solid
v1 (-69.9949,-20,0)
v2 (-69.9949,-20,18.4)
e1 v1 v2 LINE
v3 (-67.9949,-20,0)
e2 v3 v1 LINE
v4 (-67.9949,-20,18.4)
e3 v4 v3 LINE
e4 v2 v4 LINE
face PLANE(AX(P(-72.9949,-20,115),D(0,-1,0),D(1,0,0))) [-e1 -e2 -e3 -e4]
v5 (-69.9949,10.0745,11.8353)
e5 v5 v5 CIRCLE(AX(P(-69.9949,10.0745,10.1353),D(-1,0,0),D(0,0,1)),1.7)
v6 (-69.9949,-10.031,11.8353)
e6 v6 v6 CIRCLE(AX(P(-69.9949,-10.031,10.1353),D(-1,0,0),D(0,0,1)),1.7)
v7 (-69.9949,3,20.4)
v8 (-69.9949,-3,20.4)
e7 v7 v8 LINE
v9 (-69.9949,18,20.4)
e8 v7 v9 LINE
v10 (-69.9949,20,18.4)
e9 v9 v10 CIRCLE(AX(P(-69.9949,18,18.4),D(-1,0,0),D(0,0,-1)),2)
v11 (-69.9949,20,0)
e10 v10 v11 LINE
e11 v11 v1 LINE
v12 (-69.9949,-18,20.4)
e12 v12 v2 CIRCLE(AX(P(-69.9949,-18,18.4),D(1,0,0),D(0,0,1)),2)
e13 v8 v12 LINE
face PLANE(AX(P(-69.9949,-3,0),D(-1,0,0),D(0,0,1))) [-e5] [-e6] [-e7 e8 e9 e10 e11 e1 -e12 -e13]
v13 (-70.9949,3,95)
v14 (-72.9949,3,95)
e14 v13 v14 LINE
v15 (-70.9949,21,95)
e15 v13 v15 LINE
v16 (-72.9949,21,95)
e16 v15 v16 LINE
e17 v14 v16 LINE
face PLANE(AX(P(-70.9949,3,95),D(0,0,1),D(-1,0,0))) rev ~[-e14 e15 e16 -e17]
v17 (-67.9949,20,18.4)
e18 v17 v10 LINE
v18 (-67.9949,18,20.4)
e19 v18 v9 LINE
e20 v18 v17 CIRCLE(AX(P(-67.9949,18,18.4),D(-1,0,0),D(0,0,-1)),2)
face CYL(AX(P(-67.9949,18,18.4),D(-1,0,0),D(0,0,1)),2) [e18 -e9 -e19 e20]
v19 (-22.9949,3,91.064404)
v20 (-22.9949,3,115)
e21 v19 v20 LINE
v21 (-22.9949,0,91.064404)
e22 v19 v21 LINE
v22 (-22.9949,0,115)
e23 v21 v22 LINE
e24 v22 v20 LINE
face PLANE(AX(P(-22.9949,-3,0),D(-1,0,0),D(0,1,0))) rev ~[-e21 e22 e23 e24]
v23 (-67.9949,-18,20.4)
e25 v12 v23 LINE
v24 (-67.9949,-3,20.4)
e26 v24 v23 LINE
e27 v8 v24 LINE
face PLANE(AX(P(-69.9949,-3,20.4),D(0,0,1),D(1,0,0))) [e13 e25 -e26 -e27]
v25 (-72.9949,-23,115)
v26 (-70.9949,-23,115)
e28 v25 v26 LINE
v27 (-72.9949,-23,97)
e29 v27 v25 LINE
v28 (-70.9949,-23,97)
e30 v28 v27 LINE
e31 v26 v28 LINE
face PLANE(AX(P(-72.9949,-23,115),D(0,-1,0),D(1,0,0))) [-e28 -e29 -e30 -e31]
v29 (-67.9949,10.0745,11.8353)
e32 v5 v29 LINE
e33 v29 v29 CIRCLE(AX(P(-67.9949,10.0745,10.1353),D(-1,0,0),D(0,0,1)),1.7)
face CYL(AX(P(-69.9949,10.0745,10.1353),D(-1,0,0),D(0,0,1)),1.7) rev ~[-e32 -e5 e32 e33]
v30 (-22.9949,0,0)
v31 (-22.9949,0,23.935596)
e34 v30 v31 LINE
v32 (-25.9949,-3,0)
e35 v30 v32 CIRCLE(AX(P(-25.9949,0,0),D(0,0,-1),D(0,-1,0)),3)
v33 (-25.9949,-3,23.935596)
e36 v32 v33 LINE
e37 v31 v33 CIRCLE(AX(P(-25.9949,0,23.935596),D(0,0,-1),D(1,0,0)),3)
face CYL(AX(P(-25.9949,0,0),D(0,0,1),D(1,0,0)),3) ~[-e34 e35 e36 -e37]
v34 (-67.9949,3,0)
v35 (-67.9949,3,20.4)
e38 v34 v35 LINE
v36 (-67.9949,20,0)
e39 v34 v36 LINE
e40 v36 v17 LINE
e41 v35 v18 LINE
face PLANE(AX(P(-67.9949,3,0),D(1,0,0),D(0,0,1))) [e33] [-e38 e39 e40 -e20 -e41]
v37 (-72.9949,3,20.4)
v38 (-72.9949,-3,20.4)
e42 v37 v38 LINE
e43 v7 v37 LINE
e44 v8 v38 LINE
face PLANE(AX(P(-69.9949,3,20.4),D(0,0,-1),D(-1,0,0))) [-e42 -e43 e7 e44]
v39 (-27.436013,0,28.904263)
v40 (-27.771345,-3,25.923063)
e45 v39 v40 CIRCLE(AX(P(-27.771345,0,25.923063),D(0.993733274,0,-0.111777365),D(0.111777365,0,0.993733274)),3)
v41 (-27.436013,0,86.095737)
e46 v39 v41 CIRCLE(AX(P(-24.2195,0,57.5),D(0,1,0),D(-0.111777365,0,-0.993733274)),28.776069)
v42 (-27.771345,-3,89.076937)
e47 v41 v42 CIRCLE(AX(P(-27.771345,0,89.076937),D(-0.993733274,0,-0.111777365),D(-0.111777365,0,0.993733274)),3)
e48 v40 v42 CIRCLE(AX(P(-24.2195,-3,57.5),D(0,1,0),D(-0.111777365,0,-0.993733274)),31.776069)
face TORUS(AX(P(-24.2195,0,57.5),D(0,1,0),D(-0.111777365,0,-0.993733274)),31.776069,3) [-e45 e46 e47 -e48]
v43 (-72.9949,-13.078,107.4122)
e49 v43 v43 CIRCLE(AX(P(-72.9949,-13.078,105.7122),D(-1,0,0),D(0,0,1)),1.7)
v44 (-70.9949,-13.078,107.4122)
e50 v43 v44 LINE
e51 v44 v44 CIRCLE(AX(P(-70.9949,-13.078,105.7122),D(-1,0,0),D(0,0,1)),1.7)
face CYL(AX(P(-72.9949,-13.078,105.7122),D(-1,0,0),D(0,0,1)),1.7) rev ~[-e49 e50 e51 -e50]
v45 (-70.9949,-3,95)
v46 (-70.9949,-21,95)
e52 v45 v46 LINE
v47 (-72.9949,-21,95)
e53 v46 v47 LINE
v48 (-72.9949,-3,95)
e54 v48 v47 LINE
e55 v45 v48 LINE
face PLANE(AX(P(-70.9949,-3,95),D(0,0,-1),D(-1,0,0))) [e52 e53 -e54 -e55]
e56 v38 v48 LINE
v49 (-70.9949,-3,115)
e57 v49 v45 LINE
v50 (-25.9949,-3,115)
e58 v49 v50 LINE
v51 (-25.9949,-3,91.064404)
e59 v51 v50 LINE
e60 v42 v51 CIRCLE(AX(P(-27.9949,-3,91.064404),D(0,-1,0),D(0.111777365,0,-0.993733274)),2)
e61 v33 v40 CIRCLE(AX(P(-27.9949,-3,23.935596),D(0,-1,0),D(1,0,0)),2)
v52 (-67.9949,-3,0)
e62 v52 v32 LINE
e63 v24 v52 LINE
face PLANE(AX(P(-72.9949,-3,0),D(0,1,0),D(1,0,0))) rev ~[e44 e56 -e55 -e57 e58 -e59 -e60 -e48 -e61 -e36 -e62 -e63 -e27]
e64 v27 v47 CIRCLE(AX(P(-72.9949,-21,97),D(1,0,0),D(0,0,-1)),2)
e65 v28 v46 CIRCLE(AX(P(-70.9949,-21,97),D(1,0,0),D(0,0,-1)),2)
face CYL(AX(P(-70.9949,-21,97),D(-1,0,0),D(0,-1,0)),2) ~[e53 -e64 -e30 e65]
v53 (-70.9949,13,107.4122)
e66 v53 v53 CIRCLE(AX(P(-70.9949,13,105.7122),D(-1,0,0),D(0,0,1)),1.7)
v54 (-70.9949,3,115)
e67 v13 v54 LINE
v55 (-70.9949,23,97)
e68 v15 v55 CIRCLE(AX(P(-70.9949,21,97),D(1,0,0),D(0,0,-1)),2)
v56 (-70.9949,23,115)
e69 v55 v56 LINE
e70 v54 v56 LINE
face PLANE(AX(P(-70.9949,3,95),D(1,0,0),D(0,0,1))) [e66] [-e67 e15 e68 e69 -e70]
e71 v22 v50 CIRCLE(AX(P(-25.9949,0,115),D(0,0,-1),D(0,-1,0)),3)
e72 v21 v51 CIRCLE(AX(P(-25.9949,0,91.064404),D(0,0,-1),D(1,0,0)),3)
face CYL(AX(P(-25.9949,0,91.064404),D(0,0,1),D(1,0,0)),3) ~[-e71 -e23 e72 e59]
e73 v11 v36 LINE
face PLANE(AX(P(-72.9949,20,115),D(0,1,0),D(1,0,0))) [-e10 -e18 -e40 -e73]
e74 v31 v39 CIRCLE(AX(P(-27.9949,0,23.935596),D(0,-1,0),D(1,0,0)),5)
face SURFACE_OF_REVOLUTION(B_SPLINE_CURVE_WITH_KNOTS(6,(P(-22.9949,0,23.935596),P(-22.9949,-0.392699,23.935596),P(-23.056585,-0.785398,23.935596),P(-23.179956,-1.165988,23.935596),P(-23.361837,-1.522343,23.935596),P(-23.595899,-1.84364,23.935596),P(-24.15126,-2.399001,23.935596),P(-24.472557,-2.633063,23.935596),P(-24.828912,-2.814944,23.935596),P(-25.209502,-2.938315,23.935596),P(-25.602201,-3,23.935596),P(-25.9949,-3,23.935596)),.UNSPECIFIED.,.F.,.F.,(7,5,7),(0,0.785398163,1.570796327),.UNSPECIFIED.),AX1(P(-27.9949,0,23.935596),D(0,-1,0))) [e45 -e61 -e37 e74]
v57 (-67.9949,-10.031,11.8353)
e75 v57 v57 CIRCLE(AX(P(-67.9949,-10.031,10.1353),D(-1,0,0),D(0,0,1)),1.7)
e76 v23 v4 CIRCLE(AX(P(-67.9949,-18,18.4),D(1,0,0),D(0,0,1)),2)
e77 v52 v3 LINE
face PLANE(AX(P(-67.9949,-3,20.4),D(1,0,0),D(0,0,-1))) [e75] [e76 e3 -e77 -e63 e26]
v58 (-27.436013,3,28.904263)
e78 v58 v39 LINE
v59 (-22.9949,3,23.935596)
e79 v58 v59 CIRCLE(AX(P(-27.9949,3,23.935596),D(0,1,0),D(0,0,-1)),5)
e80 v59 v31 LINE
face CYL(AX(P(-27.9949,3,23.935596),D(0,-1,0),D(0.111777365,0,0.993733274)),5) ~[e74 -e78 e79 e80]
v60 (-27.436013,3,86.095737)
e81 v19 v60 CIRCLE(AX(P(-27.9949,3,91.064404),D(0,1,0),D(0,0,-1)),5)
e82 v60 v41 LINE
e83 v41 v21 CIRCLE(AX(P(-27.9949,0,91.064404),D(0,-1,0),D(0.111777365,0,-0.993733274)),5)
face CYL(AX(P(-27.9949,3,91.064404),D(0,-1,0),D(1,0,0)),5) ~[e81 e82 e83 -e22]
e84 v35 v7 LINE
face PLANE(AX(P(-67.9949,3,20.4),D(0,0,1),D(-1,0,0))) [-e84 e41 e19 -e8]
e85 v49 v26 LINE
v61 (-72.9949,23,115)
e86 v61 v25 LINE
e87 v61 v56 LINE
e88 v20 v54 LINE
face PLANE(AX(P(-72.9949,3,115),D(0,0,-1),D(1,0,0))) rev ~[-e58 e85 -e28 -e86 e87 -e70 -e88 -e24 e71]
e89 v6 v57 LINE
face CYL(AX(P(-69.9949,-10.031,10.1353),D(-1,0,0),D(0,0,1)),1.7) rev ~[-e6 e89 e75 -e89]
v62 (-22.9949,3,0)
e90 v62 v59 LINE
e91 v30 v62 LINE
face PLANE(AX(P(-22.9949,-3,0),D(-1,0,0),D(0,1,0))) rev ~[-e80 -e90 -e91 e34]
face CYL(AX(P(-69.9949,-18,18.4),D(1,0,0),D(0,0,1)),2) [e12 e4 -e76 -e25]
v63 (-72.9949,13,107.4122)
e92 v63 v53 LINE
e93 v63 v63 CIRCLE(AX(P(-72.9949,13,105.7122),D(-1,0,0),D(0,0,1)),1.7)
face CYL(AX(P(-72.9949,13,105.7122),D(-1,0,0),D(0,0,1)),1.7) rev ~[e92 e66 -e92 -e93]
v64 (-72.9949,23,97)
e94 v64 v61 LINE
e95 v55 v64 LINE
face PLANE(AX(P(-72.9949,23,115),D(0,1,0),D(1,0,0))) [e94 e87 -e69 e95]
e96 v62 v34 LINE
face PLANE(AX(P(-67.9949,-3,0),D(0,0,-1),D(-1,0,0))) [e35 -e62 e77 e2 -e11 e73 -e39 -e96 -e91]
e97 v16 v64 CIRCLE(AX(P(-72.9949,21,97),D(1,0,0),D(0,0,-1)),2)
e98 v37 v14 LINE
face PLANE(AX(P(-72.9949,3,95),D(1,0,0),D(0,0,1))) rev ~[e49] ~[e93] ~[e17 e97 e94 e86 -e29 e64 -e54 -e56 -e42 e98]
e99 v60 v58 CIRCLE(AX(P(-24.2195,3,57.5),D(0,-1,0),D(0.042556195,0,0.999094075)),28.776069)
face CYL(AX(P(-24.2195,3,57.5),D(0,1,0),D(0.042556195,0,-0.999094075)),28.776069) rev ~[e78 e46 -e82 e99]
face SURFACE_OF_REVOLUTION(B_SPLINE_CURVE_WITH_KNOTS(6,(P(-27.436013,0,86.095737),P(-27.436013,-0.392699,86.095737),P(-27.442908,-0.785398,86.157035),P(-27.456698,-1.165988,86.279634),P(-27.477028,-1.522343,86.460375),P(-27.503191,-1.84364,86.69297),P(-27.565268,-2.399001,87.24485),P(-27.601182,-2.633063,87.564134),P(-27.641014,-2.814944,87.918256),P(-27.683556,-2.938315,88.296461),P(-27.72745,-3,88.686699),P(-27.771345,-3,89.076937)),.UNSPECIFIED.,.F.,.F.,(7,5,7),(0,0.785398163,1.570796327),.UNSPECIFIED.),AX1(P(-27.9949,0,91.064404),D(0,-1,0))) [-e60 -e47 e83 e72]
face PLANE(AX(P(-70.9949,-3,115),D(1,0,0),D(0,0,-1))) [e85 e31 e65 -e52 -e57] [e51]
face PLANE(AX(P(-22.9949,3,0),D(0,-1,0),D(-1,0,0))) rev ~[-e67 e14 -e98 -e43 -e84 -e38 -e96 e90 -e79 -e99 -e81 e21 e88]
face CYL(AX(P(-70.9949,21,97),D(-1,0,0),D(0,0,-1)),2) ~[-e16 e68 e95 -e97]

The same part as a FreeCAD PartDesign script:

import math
import FreeCAD as App
import Part
import Sketcher
from FreeCAD import Vector
Q = App.Units.Quantity


def edges_at(feature, points):
    """Names of the edges that pass closest to the given points."""
    edges = feature.Shape.Edges
    near = lambda p: min(range(len(edges)), key=lambda i: edges[i].distToShape(Part.Vertex(*p))[0])
    return sorted({f"Edge{near(p) + 1}" for p in points})


def add_polygon(sketch, points):
    """Adds a closed chain of lines whose ends are joined by coincident constraints."""
    first, n = sketch.GeometryCount, len(points)
    for a, b in zip(points, points[1:] + points[:1]):
        sketch.addGeometry(Part.LineSegment(App.Vector(*a, 0), App.Vector(*b, 0)), False)
    for i in range(n):
        sketch.addConstraint(Sketcher.Constraint("Coincident", first + i, 2, first + (i + 1) % n, 1))

doc = App.newDocument("Part")
params = doc.addObject("Spreadsheet::Sheet", "Params")
for row, (alias, value) in enumerate([
    ("sketch1_width", "50 mm"),
    ("sketch1_height", "6 mm"),
    ("pad1_length", "115 mm"),
    ("sketch2_width", "3 mm"),
    ("sketch2_height", "20.4 mm"),
    ("pocket1_length", "6 mm"),
    ("sketch3_width", "2 mm"),
    ("sketch3_height", "20.4 mm"),
    ("pad2_length", "17 mm"),
    ("sketch4_width", "2 mm"),
    ("sketch4_height", "20.4 mm"),
    ("pad3_length", "17 mm"),
    ("fillet_radius", "2 mm"),
    ("sketch5_diameter", "3.4 mm"),
    ("pocket2_length", "2 mm"),
    ("sketch6_width", "2 mm"),
    ("sketch6_height", "20 mm"),
    ("pad4_length", "20 mm"),
    ("sketch7_width", "2 mm"),
    ("sketch7_height", "20 mm"),
    ("pad5_length", "20 mm"),
    ("sketch8_diameter", "3.4 mm"),
    ("pocket3_length", "20 mm"),
    ("fillet2_radius", "2 mm"),
    ("sketch9_height", "57.5 mm"),
    ("pocket4_length", "20 mm"),
    ("fillet3_radius", "5 mm"),
    ("fillet4_radius", "3 mm"),
], start=1):
    params.set(f"A{row}", alias)
    params.set(f"B{row}", "=" + value)
    params.setAlias(f"B{row}", alias)

body = doc.addObject("PartDesign::Body", "Body")

sketch1 = doc.addObject("Sketcher::SketchObject", "Sketch")
body.addObject(sketch1)
sketch1.AttachmentSupport = (doc.XY_Plane, [""])
sketch1.MapMode = "FlatFace"
add_polygon(sketch1, [(-73, 3), (-73, -3), (-23, -3), (-23, 3)])
sketch1.addConstraint([
    Sketcher.Constraint("Vertical", 0),
    Sketcher.Constraint("Horizontal", 1),
    Sketcher.Constraint("Vertical", 2),
    Sketcher.Constraint("Horizontal", 3),
    Sketcher.Constraint("DistanceX", 1, 1, 1, 2, Q("50 mm")),
    Sketcher.Constraint("DistanceY", 0, 2, 0, 1, Q("6 mm")),
    Sketcher.Constraint("DistanceY", 0, 2, -1, 1, Q("3 mm")),
    Sketcher.Constraint("DistanceX", 0, 2, -1, 1, Q("72.995 mm")),
])
sketch1.setExpression("Constraints[8]", "Params.sketch1_width")
sketch1.setExpression("Constraints[9]", "Params.sketch1_height")
pad1 = doc.addObject("PartDesign::Pad", "Pad")
body.addObject(pad1)
pad1.Profile = sketch1
pad1.setExpression("Length", "Params.pad1_length")

sketch2 = doc.addObject("Sketcher::SketchObject", "Sketch001")
body.addObject(sketch2)
sketch2.AttachmentSupport = (doc.XZ_Plane, [""])
sketch2.MapMode = "FlatFace"
sketch2.AttachmentOffset = App.Placement(Vector(0, 0, -3), App.Rotation())
add_polygon(sketch2, [(-70, 0), (-73, 0), (-73, 20.4), (-70, 20.4)])
sketch2.addConstraint([
    Sketcher.Constraint("Horizontal", 0),
    Sketcher.Constraint("Vertical", 1),
    Sketcher.Constraint("Horizontal", 2),
    Sketcher.Constraint("Vertical", 3),
    Sketcher.Constraint("PointOnObject", 0, 2, -1),
    Sketcher.Constraint("DistanceX", 0, 2, 0, 1, Q("3 mm")),
    Sketcher.Constraint("DistanceY", 1, 1, 1, 2, Q("20.4 mm")),
    Sketcher.Constraint("DistanceX", 0, 2, -1, 1, Q("72.995 mm")),
])
sketch2.setExpression("Constraints[9]", "Params.sketch2_width")
sketch2.setExpression("Constraints[10]", "Params.sketch2_height")
pocket1 = doc.addObject("PartDesign::Pocket", "Pocket")
body.addObject(pocket1)
pocket1.Profile = sketch2
pocket1.setExpression("Length", "Params.pocket1_length")
pocket1.Reversed = True

sketch3 = doc.addObject("Sketcher::SketchObject", "Sketch002")
body.addObject(sketch3)
sketch3.AttachmentSupport = (doc.XZ_Plane, [""])
sketch3.MapMode = "FlatFace"
sketch3.AttachmentOffset = App.Placement(Vector(0, 0, -3), App.Rotation())
add_polygon(sketch3, [(-68, 0), (-70, 0), (-70, 20.4), (-68, 20.4)])
sketch3.addConstraint([
    Sketcher.Constraint("Horizontal", 0),
    Sketcher.Constraint("Vertical", 1),
    Sketcher.Constraint("Horizontal", 2),
    Sketcher.Constraint("Vertical", 3),
    Sketcher.Constraint("PointOnObject", 0, 2, -1),
    Sketcher.Constraint("DistanceX", 0, 2, 0, 1, Q("2 mm")),
    Sketcher.Constraint("DistanceY", 1, 1, 1, 2, Q("20.4 mm")),
    Sketcher.Constraint("DistanceX", 0, 2, -1, 1, Q("69.995 mm")),
])
sketch3.setExpression("Constraints[9]", "Params.sketch3_width")
sketch3.setExpression("Constraints[10]", "Params.sketch3_height")
pad2 = doc.addObject("PartDesign::Pad", "Pad001")
body.addObject(pad2)
pad2.Profile = sketch3
pad2.setExpression("Length", "Params.pad2_length")
pad2.Reversed = True

sketch4 = doc.addObject("Sketcher::SketchObject", "Sketch003")
body.addObject(sketch4)
sketch4.AttachmentSupport = (doc.XZ_Plane, [""])
sketch4.MapMode = "FlatFace"
sketch4.AttachmentOffset = App.Placement(Vector(0, 0, 3), App.Rotation())
add_polygon(sketch4, [(-68, 20.4), (-70, 20.4), (-70, 0), (-68, 0)])
sketch4.addConstraint([
    Sketcher.Constraint("Horizontal", 0),
    Sketcher.Constraint("Vertical", 1),
    Sketcher.Constraint("Horizontal", 2),
    Sketcher.Constraint("Vertical", 3),
    Sketcher.Constraint("PointOnObject", 1, 2, -1),
    Sketcher.Constraint("DistanceX", 0, 2, 0, 1, Q("2 mm")),
    Sketcher.Constraint("DistanceY", 1, 2, 1, 1, Q("20.4 mm")),
    Sketcher.Constraint("DistanceX", 0, 2, -1, 1, Q("69.995 mm")),
])
sketch4.setExpression("Constraints[9]", "Params.sketch4_width")
sketch4.setExpression("Constraints[10]", "Params.sketch4_height")
pad3 = doc.addObject("PartDesign::Pad", "Pad002")
body.addObject(pad3)
pad3.Profile = sketch4
pad3.setExpression("Length", "Params.pad3_length")
doc.recompute()

fillet = doc.addObject("PartDesign::Fillet", "Fillet")
body.addObject(fillet)
fillet.Base = (pad3, edges_at(pad3, [(-68.995, -20, 20.4), (-68.995, 20, 20.4)]))
fillet.setExpression("Radius", "Params.fillet_radius")

sketch5 = doc.addObject("Sketcher::SketchObject", "Sketch004")
body.addObject(sketch5)
sketch5.AttachmentSupport = (doc.YZ_Plane, [""])
sketch5.MapMode = "FlatFace"
sketch5.AttachmentOffset = App.Placement(Vector(0, 0, -69.9949), App.Rotation())
sketch5.addGeometry([
    Part.Circle(Vector(-10, 10.1, 0), Vector(0, 0, 1), 1.7),
    Part.Circle(Vector(10.1, 10.1, 0), Vector(0, 0, 1), 1.7),
], False)
sketch5.addConstraint([
    Sketcher.Constraint("Equal", 0, 1),
    Sketcher.Constraint("Horizontal", 0, 3, 1, 3),
    Sketcher.Constraint("Diameter", 0, Q("3.4 mm")),
    Sketcher.Constraint("DistanceX", 0, 3, -1, 1, Q("10.031 mm")),
    Sketcher.Constraint("DistanceY", -1, 1, 0, 3, Q("10.1353 mm")),
    Sketcher.Constraint("DistanceX", -1, 1, 1, 3, Q("10.0745 mm")),
])
sketch5.setExpression("Constraints[2]", "Params.sketch5_diameter")
pocket2 = doc.addObject("PartDesign::Pocket", "Pocket001")
body.addObject(pocket2)
pocket2.Profile = sketch5
pocket2.setExpression("Length", "Params.pocket2_length")
pocket2.Reversed = True

sketch6 = doc.addObject("Sketcher::SketchObject", "Sketch005")
body.addObject(sketch6)
sketch6.AttachmentSupport = (doc.XZ_Plane, [""])
sketch6.MapMode = "FlatFace"
sketch6.AttachmentOffset = App.Placement(Vector(0, 0, 3), App.Rotation())
add_polygon(sketch6, [(-71, 115), (-73, 115), (-73, 95), (-71, 95)])
sketch6.addConstraint([
    Sketcher.Constraint("Horizontal", 0),
    Sketcher.Constraint("Vertical", 1),
    Sketcher.Constraint("Horizontal", 2),
    Sketcher.Constraint("Vertical", 3),
    Sketcher.Constraint("DistanceX", 0, 2, 0, 1, Q("2 mm")),
    Sketcher.Constraint("DistanceY", 1, 2, 1, 1, Q("20 mm")),
    Sketcher.Constraint("DistanceY", -1, 1, 0, 2, Q("115 mm")),
    Sketcher.Constraint("DistanceX", 0, 2, -1, 1, Q("72.995 mm")),
])
sketch6.setExpression("Constraints[8]", "Params.sketch6_width")
sketch6.setExpression("Constraints[9]", "Params.sketch6_height")
pad4 = doc.addObject("PartDesign::Pad", "Pad003")
body.addObject(pad4)
pad4.Profile = sketch6
pad4.setExpression("Length", "Params.pad4_length")

sketch7 = doc.addObject("Sketcher::SketchObject", "Sketch006")
body.addObject(sketch7)
sketch7.AttachmentSupport = (doc.XZ_Plane, [""])
sketch7.MapMode = "FlatFace"
sketch7.AttachmentOffset = App.Placement(Vector(0, 0, -3), App.Rotation())
add_polygon(sketch7, [(-71, 115), (-71, 95), (-73, 95), (-73, 115)])
sketch7.addConstraint([
    Sketcher.Constraint("Vertical", 0),
    Sketcher.Constraint("Horizontal", 1),
    Sketcher.Constraint("Vertical", 2),
    Sketcher.Constraint("Horizontal", 3),
    Sketcher.Constraint("DistanceX", 1, 2, 1, 1, Q("2 mm")),
    Sketcher.Constraint("DistanceY", 0, 2, 0, 1, Q("20 mm")),
    Sketcher.Constraint("DistanceY", -1, 1, 0, 2, Q("95 mm")),
    Sketcher.Constraint("DistanceX", 0, 2, -1, 1, Q("70.995 mm")),
])
sketch7.setExpression("Constraints[8]", "Params.sketch7_width")
sketch7.setExpression("Constraints[9]", "Params.sketch7_height")
pad5 = doc.addObject("PartDesign::Pad", "Pad004")
body.addObject(pad5)
pad5.Profile = sketch7
pad5.setExpression("Length", "Params.pad5_length")
pad5.Reversed = True

sketch8 = doc.addObject("Sketcher::SketchObject", "Sketch007")
body.addObject(sketch8)
sketch8.AttachmentSupport = (doc.YZ_Plane, [""])
sketch8.MapMode = "FlatFace"
sketch8.AttachmentOffset = App.Placement(Vector(0, 0, -72.9949), App.Rotation())
sketch8.addGeometry([
    Part.Circle(Vector(13, 105.7, 0), Vector(0, 0, 1), 1.7),
    Part.Circle(Vector(-13.1, 105.7, 0), Vector(0, 0, 1), 1.7),
], False)
sketch8.addConstraint([
    Sketcher.Constraint("Equal", 0, 1),
    Sketcher.Constraint("Horizontal", 0, 3, 1, 3),
    Sketcher.Constraint("Diameter", 0, Q("3.4 mm")),
    Sketcher.Constraint("DistanceX", -1, 1, 0, 3, Q("13 mm")),
    Sketcher.Constraint("DistanceX", 1, 3, -1, 1, Q("13.078 mm")),
    Sketcher.Constraint("DistanceY", -1, 1, 0, 3, Q("105.7122 mm")),
])
sketch8.setExpression("Constraints[2]", "Params.sketch8_diameter")
pocket3 = doc.addObject("PartDesign::Pocket", "Pocket002")
body.addObject(pocket3)
pocket3.Profile = sketch8
pocket3.setExpression("Length", "Params.pocket3_length")
pocket3.Reversed = True
doc.recompute()

fillet2 = doc.addObject("PartDesign::Fillet", "Fillet001")
body.addObject(fillet2)
fillet2.Base = (pocket3, edges_at(pocket3, [(-71.995, 23, 95), (-71.995, -23, 95)]))
fillet2.setExpression("Radius", "Params.fillet2_radius")

sketch9 = doc.addObject("Sketcher::SketchObject", "Sketch008")
body.addObject(sketch9)
sketch9.AttachmentSupport = (doc.XZ_Plane, [""])
sketch9.MapMode = "FlatFace"
sketch9.AttachmentOffset = App.Placement(Vector(0, 0, -3), App.Rotation())
sketch9.addGeometry([
    Part.LineSegment(Vector(-23, 86, 0), Vector(-23, 29, 0)),
    Part.ArcOfCircle(Part.Circle(Vector(-24, 58, 0), Vector(0, 0, 1), 29), math.radians(88), math.radians(272)),
], False)
sketch9.addConstraint([
    Sketcher.Constraint("Coincident", 0, 1, 1, 1),
    Sketcher.Constraint("Coincident", 1, 2, 0, 2),
    Sketcher.Constraint("Vertical", 0),
    Sketcher.Constraint("DistanceY", 0, 2, 0, 1, Q("57.5 mm")),
    Sketcher.Constraint("DistanceY", -1, 1, 1, 3, Q("57.5 mm")),
    Sketcher.Constraint("Radius", 1, Q("28.776 mm")),
    Sketcher.Constraint("DistanceX", 0, 1, -1, 1, Q("22.995 mm")),
])
sketch9.setExpression("Constraints[3]", "Params.sketch9_height")
pocket4 = doc.addObject("PartDesign::Pocket", "Pocket003")
body.addObject(pocket4)
pocket4.Profile = sketch9
pocket4.setExpression("Length", "Params.pocket4_length")
pocket4.Reversed = True
doc.recompute()

fillet3 = doc.addObject("PartDesign::Fillet", "Fillet002")
body.addObject(fillet3)
fillet3.Base = (pocket4, edges_at(pocket4, [(-22.995, 0, 86.25), (-22.995, 0, 28.75)]))
fillet3.setExpression("Radius", "Params.fillet3_radius")
doc.recompute()

fillet4 = doc.addObject("PartDesign::Fillet", "Fillet003")
body.addObject(fillet4)
fillet4.Base = (fillet3, edges_at(fillet3, [
    (-22.995, -3, 11.968),
    (-24.267, -3, 87.732),
    (-24.267, -3, 27.268),
    (-52.995, -3, 57.5),
    (-22.995, -3, 103.032),
]))
fillet4.setExpression("Radius", "Params.fillet4_radius")

doc.recompute()
